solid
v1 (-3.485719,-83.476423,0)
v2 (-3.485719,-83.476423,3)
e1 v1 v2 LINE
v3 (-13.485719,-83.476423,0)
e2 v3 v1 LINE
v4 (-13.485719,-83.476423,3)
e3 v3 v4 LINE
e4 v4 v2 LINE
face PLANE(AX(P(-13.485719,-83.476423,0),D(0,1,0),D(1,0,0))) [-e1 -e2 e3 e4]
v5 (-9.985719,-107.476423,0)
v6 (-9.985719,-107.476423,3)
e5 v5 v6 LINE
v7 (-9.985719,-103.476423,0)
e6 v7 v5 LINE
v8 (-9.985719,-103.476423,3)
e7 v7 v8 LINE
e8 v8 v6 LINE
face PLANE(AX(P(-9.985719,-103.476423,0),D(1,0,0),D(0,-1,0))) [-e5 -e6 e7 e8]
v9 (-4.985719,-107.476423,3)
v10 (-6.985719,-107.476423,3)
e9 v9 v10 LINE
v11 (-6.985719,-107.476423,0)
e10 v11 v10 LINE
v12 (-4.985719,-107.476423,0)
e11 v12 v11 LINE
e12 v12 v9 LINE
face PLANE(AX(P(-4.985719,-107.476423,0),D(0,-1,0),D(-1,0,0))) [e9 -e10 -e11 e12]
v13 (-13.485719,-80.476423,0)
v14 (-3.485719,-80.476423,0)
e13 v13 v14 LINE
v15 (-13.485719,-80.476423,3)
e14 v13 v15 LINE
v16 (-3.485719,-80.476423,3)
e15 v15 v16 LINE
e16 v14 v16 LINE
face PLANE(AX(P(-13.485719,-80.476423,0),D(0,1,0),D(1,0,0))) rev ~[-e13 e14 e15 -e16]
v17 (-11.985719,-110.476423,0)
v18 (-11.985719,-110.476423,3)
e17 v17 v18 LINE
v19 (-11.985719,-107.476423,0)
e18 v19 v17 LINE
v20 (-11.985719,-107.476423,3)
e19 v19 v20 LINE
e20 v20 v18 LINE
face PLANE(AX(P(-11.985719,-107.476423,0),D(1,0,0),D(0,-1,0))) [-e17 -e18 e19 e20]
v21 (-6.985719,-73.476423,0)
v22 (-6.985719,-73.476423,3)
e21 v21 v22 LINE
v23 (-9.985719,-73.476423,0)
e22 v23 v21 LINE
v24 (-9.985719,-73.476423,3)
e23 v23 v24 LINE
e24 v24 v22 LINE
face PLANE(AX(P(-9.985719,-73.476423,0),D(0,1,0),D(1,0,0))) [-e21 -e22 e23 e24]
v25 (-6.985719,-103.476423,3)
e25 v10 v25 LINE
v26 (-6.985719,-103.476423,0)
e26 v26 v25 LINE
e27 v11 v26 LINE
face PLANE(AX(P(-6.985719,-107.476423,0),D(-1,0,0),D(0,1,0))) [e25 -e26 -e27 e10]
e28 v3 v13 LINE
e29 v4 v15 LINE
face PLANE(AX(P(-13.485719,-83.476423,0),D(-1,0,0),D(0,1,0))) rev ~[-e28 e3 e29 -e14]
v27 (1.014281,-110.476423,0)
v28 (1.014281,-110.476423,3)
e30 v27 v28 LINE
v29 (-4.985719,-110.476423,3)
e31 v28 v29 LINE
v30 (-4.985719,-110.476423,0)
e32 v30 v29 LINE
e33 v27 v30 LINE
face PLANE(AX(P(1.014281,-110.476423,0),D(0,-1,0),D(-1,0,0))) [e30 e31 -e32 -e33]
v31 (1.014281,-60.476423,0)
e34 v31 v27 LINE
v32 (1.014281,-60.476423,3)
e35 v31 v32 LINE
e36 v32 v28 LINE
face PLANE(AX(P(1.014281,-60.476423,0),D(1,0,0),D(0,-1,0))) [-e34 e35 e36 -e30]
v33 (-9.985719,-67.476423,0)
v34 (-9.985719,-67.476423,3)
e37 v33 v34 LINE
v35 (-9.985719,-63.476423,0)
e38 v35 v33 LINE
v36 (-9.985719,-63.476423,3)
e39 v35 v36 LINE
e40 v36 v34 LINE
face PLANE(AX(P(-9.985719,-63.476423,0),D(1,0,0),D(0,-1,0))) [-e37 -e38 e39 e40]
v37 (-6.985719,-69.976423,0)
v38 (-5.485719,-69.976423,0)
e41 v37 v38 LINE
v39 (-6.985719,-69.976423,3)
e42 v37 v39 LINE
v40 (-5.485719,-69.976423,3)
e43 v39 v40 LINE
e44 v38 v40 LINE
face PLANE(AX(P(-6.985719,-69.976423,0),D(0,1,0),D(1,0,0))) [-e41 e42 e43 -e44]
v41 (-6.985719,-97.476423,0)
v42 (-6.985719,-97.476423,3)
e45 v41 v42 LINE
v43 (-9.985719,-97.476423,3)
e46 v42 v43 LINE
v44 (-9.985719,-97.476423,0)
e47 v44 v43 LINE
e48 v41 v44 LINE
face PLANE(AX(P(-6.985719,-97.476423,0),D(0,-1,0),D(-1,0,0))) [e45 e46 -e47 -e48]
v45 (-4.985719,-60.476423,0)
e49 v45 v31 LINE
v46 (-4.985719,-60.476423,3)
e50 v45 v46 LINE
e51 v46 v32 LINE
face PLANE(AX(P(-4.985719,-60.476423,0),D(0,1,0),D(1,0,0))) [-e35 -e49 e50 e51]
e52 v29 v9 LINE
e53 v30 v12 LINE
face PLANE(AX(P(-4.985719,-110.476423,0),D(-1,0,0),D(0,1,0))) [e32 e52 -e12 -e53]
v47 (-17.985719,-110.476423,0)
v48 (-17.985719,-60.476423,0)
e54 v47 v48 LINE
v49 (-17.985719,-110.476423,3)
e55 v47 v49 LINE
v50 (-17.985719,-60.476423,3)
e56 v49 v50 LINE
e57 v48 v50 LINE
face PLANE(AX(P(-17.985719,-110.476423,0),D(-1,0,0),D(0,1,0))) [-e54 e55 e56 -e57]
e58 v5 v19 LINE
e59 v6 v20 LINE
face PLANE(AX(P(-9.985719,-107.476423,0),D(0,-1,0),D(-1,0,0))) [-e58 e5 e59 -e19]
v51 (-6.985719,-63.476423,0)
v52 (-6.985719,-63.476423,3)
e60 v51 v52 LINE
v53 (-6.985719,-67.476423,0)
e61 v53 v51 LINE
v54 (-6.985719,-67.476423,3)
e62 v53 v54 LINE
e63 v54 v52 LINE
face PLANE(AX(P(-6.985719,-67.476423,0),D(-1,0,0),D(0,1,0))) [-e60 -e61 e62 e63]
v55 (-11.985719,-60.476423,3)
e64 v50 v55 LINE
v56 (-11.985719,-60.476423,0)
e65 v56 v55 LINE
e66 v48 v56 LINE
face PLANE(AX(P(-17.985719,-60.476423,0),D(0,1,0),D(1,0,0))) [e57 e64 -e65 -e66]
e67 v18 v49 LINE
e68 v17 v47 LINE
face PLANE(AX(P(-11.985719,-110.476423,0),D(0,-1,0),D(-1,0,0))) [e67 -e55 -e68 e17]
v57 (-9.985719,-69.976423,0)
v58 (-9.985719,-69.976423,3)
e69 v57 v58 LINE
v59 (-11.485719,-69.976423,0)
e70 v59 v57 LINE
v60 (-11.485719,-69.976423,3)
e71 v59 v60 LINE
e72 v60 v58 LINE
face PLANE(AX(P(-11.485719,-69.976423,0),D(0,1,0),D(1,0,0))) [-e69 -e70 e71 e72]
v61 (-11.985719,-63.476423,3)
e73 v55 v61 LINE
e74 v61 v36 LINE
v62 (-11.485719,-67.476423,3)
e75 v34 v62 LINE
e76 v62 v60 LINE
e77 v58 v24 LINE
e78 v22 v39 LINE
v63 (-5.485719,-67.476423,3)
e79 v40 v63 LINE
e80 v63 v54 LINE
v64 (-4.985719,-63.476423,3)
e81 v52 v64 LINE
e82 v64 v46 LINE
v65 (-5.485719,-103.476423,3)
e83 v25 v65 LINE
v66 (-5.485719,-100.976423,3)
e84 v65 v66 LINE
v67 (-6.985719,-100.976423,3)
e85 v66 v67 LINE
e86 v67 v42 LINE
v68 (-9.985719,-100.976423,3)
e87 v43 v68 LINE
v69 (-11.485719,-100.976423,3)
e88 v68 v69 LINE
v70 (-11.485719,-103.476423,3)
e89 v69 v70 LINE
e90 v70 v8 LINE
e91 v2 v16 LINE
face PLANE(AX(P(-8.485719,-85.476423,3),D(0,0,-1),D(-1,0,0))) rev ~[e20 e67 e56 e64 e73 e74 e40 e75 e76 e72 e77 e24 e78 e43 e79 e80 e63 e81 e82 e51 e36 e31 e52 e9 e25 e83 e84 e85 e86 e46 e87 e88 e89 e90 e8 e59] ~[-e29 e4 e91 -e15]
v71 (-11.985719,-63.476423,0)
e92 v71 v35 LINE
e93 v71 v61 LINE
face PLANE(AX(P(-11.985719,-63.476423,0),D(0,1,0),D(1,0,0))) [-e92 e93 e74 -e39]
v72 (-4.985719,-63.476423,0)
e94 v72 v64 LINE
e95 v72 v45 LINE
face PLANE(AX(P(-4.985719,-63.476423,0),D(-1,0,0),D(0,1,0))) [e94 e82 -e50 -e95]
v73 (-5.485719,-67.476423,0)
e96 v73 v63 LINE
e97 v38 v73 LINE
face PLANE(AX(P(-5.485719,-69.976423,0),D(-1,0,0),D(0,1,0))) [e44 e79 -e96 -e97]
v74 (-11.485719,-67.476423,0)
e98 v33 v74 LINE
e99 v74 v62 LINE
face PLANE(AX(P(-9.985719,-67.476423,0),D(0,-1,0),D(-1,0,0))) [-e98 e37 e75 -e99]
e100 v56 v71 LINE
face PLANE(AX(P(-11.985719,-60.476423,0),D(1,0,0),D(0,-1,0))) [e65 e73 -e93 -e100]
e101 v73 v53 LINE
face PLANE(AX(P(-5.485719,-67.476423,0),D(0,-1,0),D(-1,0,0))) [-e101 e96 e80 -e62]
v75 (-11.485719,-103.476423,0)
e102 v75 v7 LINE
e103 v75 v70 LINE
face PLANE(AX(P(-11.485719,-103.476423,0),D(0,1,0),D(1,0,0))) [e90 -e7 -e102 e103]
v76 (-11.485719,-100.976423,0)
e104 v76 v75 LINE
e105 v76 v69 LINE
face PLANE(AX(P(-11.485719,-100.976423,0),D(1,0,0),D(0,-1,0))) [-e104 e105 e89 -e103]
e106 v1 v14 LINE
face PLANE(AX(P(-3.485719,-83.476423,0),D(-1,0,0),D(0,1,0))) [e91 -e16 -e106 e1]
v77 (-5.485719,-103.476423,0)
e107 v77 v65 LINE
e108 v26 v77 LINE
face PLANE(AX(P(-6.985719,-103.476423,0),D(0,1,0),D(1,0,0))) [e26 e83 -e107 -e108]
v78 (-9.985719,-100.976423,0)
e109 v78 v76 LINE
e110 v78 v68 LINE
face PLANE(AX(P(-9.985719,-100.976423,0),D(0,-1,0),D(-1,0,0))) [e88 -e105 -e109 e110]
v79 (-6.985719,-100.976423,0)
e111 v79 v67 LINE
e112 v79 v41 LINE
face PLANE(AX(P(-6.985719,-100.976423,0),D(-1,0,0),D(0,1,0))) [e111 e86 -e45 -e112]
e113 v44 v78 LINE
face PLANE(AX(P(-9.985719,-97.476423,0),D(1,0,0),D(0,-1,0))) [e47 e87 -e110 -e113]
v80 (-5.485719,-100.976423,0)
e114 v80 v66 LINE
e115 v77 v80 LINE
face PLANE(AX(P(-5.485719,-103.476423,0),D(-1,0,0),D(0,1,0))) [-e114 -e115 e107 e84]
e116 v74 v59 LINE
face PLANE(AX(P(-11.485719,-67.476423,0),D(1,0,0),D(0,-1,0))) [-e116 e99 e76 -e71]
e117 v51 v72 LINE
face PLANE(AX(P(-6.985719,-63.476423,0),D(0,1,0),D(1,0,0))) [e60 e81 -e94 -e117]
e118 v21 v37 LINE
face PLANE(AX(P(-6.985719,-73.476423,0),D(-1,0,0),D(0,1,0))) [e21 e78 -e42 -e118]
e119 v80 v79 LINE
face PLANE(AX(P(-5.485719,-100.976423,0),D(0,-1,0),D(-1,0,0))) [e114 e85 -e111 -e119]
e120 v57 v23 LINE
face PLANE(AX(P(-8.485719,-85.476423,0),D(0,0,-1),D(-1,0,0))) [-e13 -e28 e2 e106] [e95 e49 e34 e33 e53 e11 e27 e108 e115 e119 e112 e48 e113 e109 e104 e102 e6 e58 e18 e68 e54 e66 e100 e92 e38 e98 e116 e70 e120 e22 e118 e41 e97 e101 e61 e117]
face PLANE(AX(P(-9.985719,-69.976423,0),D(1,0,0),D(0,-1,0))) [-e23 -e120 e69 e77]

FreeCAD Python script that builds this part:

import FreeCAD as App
import Part
import Sketcher
from FreeCAD import Vector


def add_polygon(sketch, points):
    """Adds a closed chain of lines whose ends are joined by coincident constraints."""
    first, n = sketch.GeometryCount, len(points)
    for a, b in zip(points, points[1:] + points[:1]):
        sketch.addGeometry(Part.LineSegment(App.Vector(*a, 0), App.Vector(*b, 0)), False)
    for i in range(n):
        sketch.addConstraint(Sketcher.Constraint("Coincident", first + i, 2, first + (i + 1) % n, 1))

doc = App.newDocument("Part")
body = doc.addObject("PartDesign::Body", "Body")

# Sketch on XY plane
sketch1 = body.newObject("Sketcher::SketchObject", "Sketch")
sketch1.AttachmentSupport = (doc.getObject("XY_Plane"), [""])
sketch1.MapMode = "FlatFace"
add_polygon(sketch1, [(1, -60.5), (-5, -60.5), (-5, -63.5), (-7, -63.5), (-7, -67.5), (-5.5, -67.5), (-5.5, -70), (-7, -70), (-7, -73.5), (-10, -73.5), (-10, -70), (-11.5, -70), (-11.5, -67.5), (-10, -67.5), (-10, -63.5), (-12, -63.5), (-12, -60.5), (-18, -60.5), (-18, -110.5), (-12, -110.5), (-12, -107.5), (-10, -107.5), (-10, -103.5), (-11.5, -103.5), (-11.5, -101), (-10, -101), (-10, -97.5), (-7, -97.5), (-7, -101), (-5.5, -101), (-5.5, -103.5), (-7, -103.5), (-7, -107.5), (-5, -107.5), (-5, -110.5), (1, -110.5)])  # lines 0-35
add_polygon(sketch1, [(-13.5, -83.5), (-13.5, -80.5), (-3.5, -80.5), (-3.5, -83.5)])  # lines 36-39
sketch1.addConstraint(Sketcher.Constraint("Horizontal", 0))
sketch1.addConstraint(Sketcher.Constraint("Vertical", 1))
sketch1.addConstraint(Sketcher.Constraint("Horizontal", 2))
sketch1.addConstraint(Sketcher.Constraint("Vertical", 3))
sketch1.addConstraint(Sketcher.Constraint("Horizontal", 4))
sketch1.addConstraint(Sketcher.Constraint("Vertical", 5))
sketch1.addConstraint(Sketcher.Constraint("Horizontal", 6))
sketch1.addConstraint(Sketcher.Constraint("Vertical", 7))
sketch1.addConstraint(Sketcher.Constraint("Horizontal", 8))
sketch1.addConstraint(Sketcher.Constraint("Vertical", 9))
sketch1.addConstraint(Sketcher.Constraint("Horizontal", 10))
sketch1.addConstraint(Sketcher.Constraint("Vertical", 11))
sketch1.addConstraint(Sketcher.Constraint("Horizontal", 12))
sketch1.addConstraint(Sketcher.Constraint("Vertical", 13))
sketch1.addConstraint(Sketcher.Constraint("Horizontal", 14))
sketch1.addConstraint(Sketcher.Constraint("Vertical", 15))
sketch1.addConstraint(Sketcher.Constraint("Horizontal", 16))
sketch1.addConstraint(Sketcher.Constraint("Vertical", 17))
sketch1.addConstraint(Sketcher.Constraint("Horizontal", 18))
sketch1.addConstraint(Sketcher.Constraint("Vertical", 19))
sketch1.addConstraint(Sketcher.Constraint("Horizontal", 20))
sketch1.addConstraint(Sketcher.Constraint("Vertical", 21))
sketch1.addConstraint(Sketcher.Constraint("Horizontal", 22))
sketch1.addConstraint(Sketcher.Constraint("Vertical", 23))
sketch1.addConstraint(Sketcher.Constraint("Horizontal", 24))
sketch1.addConstraint(Sketcher.Constraint("Vertical", 25))
sketch1.addConstraint(Sketcher.Constraint("Horizontal", 26))
sketch1.addConstraint(Sketcher.Constraint("Vertical", 27))
sketch1.addConstraint(Sketcher.Constraint("Horizontal", 28))
sketch1.addConstraint(Sketcher.Constraint("Vertical", 29))
sketch1.addConstraint(Sketcher.Constraint("Horizontal", 30))
sketch1.addConstraint(Sketcher.Constraint("Vertical", 31))
sketch1.addConstraint(Sketcher.Constraint("Horizontal", 32))
sketch1.addConstraint(Sketcher.Constraint("Vertical", 33))
sketch1.addConstraint(Sketcher.Constraint("Horizontal", 34))
sketch1.addConstraint(Sketcher.Constraint("Vertical", 35))
sketch1.addConstraint(Sketcher.Constraint("Vertical", 36))
sketch1.addConstraint(Sketcher.Constraint("Horizontal", 37))
sketch1.addConstraint(Sketcher.Constraint("Vertical", 38))
sketch1.addConstraint(Sketcher.Constraint("Horizontal", 39))
sketch1.addConstraint(Sketcher.Constraint("Horizontal", 6, 2, 9, 2))
sketch1.addConstraint(Sketcher.Constraint("Horizontal", 4, 2, 11, 2))
sketch1.addConstraint(Sketcher.Constraint("Horizontal", 2, 2, 13, 2))
sketch1.addConstraint(Sketcher.Constraint("Horizontal", 0, 2, 15, 2))
sketch1.addConstraint(Sketcher.Constraint("Horizontal", 24, 2, 27, 2))
sketch1.addConstraint(Sketcher.Constraint("Horizontal", 22, 2, 29, 2))
sketch1.addConstraint(Sketcher.Constraint("Horizontal", 20, 2, 31, 2))
sketch1.addConstraint(Sketcher.Constraint("Horizontal", 18, 2, 33, 2))
sketch1.addConstraint(Sketcher.Constraint("Vertical", 3, 2, 6, 2))
sketch1.addConstraint(Sketcher.Constraint("Vertical", 9, 2, 12, 2))
sketch1.addConstraint(Sketcher.Constraint("Vertical", 15, 2, 18, 2))
sketch1.addConstraint(Sketcher.Constraint("Vertical", 13, 2, 20, 2))
sketch1.addConstraint(Sketcher.Constraint("Vertical", 11, 2, 22, 2))
sketch1.addConstraint(Sketcher.Constraint("Vertical", 21, 2, 24, 2))
sketch1.addConstraint(Sketcher.Constraint("Vertical", 7, 2, 26, 2))
sketch1.addConstraint(Sketcher.Constraint("Vertical", 5, 2, 28, 2))
sketch1.addConstraint(Sketcher.Constraint("Vertical", 27, 2, 30, 2))
sketch1.addConstraint(Sketcher.Constraint("Vertical", 1, 2, 32, 2))
sketch1.addConstraint(Sketcher.Constraint("Equal", 6, 10))
sketch1.addConstraint(Sketcher.Constraint("Equal", 2, 14))
sketch1.addConstraint(Sketcher.Constraint("Equal", 0, 16))
sketch1.addConstraint(Sketcher.Constraint("Equal", 26, 1))
sketch1.addConstraint(Sketcher.Constraint("Equal", 15, 19))
sketch1.addConstraint(Sketcher.Constraint("Equal", 13, 21))
sketch1.addConstraint(Sketcher.Constraint("Equal", 11, 23))
sketch1.addConstraint(Sketcher.Constraint("Equal", 9, 25))
sketch1.addConstraint(Sketcher.Constraint("Equal", 33, 36))
sketch1.addConstraint(Sketcher.Constraint("DistanceX", 0, 2, 0, 1, 6.0))
sketch1.addConstraint(Sketcher.Constraint("DistanceX", 2, 2, 2, 1, 2.0))
sketch1.addConstraint(Sketcher.Constraint("DistanceX", 8, 2, 8, 1, 3.0))
sketch1.addConstraint(Sketcher.Constraint("DistanceX", 37, 1, 37, 2, 10.0))
sketch1.addConstraint(Sketcher.Constraint("DistanceY", 3, 2, 3, 1, 4.0))
sketch1.addConstraint(Sketcher.Constraint("DistanceY", 17, 2, 17, 1, 50.0))
sketch1.addConstraint(Sketcher.Constraint("DistanceX", 4, 1, 4, 2, 1.5))
sketch1.addConstraint(Sketcher.Constraint("DistanceY", 5, 2, 5, 1, 2.5))
sketch1.addConstraint(Sketcher.Constraint("DistanceY", 7, 2, 7, 1, 3.5))
sketch1.addConstraint(Sketcher.Constraint("DistanceY", 36, 2, 8, 2, 7.0))
sketch1.addConstraint(Sketcher.Constraint("DistanceX", 36, 2, 10, 2, 2.0))
sketch1.addConstraint(Sketcher.Constraint("DistanceX", 0, 2, -1, 1, 4.985719))
sketch1.addConstraint(Sketcher.Constraint("DistanceY", 0, 2, -1, 1, 60.476423))
pad1 = body.newObject("PartDesign::Pad", "Pad")
pad1.Profile = sketch1
pad1.Length = 3

doc.recompute()
